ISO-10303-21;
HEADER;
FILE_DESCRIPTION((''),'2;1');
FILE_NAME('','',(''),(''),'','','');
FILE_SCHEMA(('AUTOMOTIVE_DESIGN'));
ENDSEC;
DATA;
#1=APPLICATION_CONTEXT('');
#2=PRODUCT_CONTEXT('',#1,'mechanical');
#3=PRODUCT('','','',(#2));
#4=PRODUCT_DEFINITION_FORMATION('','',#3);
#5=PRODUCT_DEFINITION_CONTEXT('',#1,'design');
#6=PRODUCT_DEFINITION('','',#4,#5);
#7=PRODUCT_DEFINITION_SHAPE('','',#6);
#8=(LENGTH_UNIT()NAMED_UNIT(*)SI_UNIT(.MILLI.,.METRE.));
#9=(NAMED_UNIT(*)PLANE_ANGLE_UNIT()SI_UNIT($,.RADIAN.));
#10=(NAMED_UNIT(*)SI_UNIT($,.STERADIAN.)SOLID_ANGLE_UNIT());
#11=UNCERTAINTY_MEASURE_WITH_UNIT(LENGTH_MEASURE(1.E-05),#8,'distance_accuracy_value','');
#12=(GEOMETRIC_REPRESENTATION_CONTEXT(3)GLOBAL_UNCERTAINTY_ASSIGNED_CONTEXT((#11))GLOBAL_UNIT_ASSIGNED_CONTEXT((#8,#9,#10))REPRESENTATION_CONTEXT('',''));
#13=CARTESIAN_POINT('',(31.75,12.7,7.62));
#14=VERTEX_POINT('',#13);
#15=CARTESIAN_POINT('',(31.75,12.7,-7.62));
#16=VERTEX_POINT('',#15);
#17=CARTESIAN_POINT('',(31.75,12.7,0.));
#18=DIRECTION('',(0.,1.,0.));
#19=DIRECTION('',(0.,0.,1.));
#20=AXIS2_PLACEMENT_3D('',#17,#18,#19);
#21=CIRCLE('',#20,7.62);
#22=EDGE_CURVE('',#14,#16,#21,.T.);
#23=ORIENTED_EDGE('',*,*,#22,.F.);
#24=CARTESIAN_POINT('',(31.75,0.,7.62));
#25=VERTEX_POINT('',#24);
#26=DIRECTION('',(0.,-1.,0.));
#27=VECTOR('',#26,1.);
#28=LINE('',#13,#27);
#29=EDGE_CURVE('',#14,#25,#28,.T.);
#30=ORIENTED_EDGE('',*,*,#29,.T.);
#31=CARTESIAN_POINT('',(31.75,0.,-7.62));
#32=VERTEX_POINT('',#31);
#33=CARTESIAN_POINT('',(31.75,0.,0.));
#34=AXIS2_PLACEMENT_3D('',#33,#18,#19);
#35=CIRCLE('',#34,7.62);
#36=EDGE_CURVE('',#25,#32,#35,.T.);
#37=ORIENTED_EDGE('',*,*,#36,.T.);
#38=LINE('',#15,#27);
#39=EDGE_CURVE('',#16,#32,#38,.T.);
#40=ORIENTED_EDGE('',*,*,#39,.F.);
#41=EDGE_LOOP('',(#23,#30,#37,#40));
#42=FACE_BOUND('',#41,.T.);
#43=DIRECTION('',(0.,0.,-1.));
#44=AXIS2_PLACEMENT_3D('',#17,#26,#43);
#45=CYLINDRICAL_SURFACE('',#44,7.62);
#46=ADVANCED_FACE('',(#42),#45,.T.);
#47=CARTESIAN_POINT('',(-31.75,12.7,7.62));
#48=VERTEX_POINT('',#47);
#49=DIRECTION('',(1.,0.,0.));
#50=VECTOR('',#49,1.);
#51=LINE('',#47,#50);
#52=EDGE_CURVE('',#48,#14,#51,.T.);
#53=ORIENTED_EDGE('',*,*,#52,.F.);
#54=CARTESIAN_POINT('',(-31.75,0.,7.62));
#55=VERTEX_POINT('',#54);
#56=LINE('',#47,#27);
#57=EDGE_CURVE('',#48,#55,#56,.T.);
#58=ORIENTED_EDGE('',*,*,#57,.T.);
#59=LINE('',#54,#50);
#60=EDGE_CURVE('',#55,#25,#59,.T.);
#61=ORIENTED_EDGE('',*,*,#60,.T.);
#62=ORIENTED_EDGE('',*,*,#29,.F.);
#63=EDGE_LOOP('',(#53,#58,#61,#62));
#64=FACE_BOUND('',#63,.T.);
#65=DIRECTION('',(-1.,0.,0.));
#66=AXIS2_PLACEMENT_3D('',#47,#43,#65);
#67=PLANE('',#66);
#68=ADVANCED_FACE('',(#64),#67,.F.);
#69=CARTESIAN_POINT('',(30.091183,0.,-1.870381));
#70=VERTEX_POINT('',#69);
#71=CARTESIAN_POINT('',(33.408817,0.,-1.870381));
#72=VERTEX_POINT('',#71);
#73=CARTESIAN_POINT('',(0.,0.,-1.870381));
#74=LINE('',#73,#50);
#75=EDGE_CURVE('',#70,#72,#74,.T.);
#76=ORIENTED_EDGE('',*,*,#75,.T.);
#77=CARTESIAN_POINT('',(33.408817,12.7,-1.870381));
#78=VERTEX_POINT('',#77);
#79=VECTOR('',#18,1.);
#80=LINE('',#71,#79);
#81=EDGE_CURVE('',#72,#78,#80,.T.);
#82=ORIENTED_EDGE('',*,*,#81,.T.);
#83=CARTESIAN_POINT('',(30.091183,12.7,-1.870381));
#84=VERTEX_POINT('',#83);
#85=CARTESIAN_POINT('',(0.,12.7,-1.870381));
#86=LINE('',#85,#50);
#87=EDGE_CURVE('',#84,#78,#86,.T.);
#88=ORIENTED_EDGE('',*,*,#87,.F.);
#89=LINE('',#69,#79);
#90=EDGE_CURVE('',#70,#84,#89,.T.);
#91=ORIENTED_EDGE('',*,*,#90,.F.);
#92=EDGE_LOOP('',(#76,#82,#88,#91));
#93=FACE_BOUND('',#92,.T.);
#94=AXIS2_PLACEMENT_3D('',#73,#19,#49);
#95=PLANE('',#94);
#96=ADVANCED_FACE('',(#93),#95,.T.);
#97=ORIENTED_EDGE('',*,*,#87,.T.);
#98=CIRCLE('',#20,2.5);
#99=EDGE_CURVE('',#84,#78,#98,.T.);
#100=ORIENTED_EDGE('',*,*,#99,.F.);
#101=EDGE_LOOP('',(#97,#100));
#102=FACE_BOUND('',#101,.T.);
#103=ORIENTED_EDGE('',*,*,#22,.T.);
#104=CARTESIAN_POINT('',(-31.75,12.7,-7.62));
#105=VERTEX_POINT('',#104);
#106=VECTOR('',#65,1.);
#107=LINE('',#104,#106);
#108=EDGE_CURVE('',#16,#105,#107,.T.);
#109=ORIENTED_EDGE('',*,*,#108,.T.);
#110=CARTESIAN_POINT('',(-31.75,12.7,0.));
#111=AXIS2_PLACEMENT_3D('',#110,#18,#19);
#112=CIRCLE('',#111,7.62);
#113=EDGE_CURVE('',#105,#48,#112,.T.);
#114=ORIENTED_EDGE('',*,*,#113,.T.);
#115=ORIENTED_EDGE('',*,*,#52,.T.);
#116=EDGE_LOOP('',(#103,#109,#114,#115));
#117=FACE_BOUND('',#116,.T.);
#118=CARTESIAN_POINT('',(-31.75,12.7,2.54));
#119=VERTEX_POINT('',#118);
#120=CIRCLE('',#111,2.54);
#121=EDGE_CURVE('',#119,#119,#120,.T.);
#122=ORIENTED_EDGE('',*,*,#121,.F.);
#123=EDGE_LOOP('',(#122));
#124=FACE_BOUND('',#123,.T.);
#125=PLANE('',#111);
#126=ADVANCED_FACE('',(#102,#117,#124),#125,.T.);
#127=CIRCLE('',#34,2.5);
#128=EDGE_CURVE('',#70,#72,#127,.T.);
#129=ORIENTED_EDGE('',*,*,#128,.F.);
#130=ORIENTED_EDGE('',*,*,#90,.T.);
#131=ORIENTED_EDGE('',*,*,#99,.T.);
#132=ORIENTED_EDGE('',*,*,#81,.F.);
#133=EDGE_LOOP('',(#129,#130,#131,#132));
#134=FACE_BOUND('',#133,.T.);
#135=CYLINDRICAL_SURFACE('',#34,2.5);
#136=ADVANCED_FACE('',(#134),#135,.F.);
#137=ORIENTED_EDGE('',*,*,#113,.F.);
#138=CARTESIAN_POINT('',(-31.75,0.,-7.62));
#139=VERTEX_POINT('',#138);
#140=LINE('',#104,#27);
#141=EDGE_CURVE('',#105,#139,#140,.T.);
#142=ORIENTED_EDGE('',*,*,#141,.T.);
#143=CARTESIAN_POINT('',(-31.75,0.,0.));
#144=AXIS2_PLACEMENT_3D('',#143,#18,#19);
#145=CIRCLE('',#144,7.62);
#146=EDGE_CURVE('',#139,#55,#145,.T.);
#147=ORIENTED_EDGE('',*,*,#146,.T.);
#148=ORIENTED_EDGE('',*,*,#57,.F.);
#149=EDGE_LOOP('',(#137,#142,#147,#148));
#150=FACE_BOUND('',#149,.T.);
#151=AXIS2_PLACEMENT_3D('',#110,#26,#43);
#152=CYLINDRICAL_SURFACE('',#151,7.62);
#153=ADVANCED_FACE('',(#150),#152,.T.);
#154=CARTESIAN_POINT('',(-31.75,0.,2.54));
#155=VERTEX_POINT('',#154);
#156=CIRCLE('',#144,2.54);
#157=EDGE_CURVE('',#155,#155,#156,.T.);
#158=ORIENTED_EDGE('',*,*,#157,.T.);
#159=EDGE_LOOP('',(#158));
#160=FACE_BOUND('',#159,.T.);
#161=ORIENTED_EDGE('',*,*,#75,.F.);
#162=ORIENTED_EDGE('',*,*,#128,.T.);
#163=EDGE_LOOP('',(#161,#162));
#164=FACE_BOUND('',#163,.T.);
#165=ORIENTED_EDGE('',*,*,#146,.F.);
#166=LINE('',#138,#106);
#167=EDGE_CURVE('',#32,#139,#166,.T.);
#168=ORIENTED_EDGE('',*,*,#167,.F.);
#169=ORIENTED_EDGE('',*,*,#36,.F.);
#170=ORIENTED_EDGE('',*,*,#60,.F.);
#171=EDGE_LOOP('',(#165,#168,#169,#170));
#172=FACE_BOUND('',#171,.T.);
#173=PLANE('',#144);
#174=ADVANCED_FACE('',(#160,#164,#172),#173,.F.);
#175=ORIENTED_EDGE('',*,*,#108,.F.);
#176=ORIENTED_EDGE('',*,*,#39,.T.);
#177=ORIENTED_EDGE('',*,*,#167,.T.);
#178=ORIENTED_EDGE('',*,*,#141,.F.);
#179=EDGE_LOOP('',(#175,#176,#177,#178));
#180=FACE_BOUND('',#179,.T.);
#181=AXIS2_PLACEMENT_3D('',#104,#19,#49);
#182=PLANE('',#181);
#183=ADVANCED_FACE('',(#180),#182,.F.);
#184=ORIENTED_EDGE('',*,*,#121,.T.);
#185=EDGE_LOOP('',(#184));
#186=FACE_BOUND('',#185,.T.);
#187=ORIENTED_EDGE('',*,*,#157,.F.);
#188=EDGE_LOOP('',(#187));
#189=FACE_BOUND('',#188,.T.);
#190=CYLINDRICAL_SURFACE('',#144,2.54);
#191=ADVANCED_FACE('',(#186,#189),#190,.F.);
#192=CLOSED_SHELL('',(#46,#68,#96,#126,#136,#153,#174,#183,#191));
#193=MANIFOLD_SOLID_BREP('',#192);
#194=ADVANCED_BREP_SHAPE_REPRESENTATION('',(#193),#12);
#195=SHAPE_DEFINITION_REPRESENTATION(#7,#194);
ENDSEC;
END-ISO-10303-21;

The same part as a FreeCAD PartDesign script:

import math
import FreeCAD as App
import Part
import Sketcher

V = App.Vector
Q = App.Units.Quantity

doc = App.newDocument("Part")
params = doc.addObject("Spreadsheet::Sheet", "Params")
for row, (alias, value) in enumerate([
    ("sketch1_radius", "0.3 in"),
    ("sketch1_width", "2.5 in"),
    ("pad1_length", "0.5 in"),
    ("sketch2_diameter", "0.2 in"),
], start=1):
    params.set(f"A{row}", alias)
    params.set(f"B{row}", "=" + value)
    params.setAlias(f"B{row}", alias)

body = doc.addObject("PartDesign::Body", "Body")

sketch1 = doc.addObject("Sketcher::SketchObject", "Sketch")
body.addObject(sketch1)
sketch1.AttachmentSupport = (doc.XZ_Plane, [""])
sketch1.MapMode = "FlatFace"
sketch1.addGeometry([
    Part.LineSegment(V(32, -8, 0), V(-32, -8, 0)),
    Part.ArcOfCircle(Part.Circle(V(-32, 0, 0), V(0, 0, 1), 8), math.radians(90), math.radians(270)),
    Part.LineSegment(V(-32, 8, 0), V(32, 8, 0)),
    Part.ArcOfCircle(Part.Circle(V(32, 0, 0), V(0, 0, 1), 8), math.radians(-90), math.radians(90)),
], False)
sketch1.addConstraint([
    Sketcher.Constraint("Tangent", 0, 2, 1, 2),
    Sketcher.Constraint("Tangent", 1, 1, 2, 1),
    Sketcher.Constraint("Tangent", 2, 2, 3, 2),
    Sketcher.Constraint("Tangent", 3, 1, 0, 1),
    Sketcher.Constraint("Horizontal", 0),
    Sketcher.Constraint("Horizontal", 2),
    Sketcher.Constraint("Symmetric", 1, 3, 3, 3, -1, 1),
    Sketcher.Constraint("Radius", 1, Q("0.3 in")),
    Sketcher.Constraint("DistanceX", 0, 2, 0, 1, Q("2.5 in")),
])
sketch1.setExpression("Constraints[7]", "Params.sketch1_radius")
sketch1.setExpression("Constraints[8]", "Params.sketch1_width")
pad1 = doc.addObject("PartDesign::Pad", "Pad")
body.addObject(pad1)
pad1.Profile = sketch1
pad1.setExpression("Length", "Params.pad1_length")
pad1.Reversed = True

sketch2 = doc.addObject("Sketcher::SketchObject", "Sketch001")
body.addObject(sketch2)
sketch2.AttachmentSupport = (doc.XZ_Plane, [""])
sketch2.MapMode = "FlatFace"
sketch2.AttachmentOffset = App.Placement(V(0, 0, -0.5 * 25.4), App.Rotation())
sketch2.addGeometry(Part.Circle(V(-31.8, 0, 0), V(0, 0, 1), 2.5), False)
sketch2.addConstraint([
    Sketcher.Constraint("PointOnObject", 0, 3, -1),
    Sketcher.Constraint("Diameter", 0, Q("0.2 in")),
    Sketcher.Constraint("DistanceX", 0, 3, -1, 1, Q("1.25 in")),
])
sketch2.setExpression("Constraints[1]", "Params.sketch2_diameter")
pocket1 = doc.addObject("PartDesign::Pocket", "Pocket")
body.addObject(pocket1)
pocket1.Profile = sketch2
pocket1.Type = "ThroughAll"
pocket1.Reversed = True

sketch3 = doc.addObject("Sketcher::SketchObject", "Sketch002")
body.addObject(sketch3)
sketch3.AttachmentSupport = (doc.XZ_Plane, [""])
sketch3.MapMode = "FlatFace"
sketch3.AttachmentOffset = App.Placement(V(0, 0, -0.5 * 25.4), App.Rotation())
sketch3.addGeometry([
    Part.LineSegment(V(33.4, -1.9, 0), V(30.1, -1.9, 0)),
    Part.ArcOfCircle(Part.Circle(V(31.8, 0, 0), V(0, 0, 1), 2.5), math.radians(0), math.radians(228)),
    Part.ArcOfCircle(Part.Circle(V(31.7, 0, 0), V(0, 0, 1), 2.5), math.radians(-48), math.radians(0)),
], False)
sketch3.addConstraint([
    Sketcher.Constraint("Coincident", 0, 2, 1, 2),
    Sketcher.Constraint("Tangent", 1, 1, 2, 2),
    Sketcher.Constraint("Coincident", 2, 1, 0, 1),
    Sketcher.Constraint("Horizontal", 0),
    Sketcher.Constraint("Equal", 1, 2),
    Sketcher.Constraint("PointOnObject", 1, 3, -1),
    Sketcher.Constraint("PointOnObject", 1, 1, -1),
    Sketcher.Constraint("DistanceX", -1, 1, 1, 3, Q("1.25 in")),
    Sketcher.Constraint("Radius", 1, Q("2.5 mm")),
    Sketcher.Constraint("DistanceX", 0, 2, 0, 1, Q("3.317635 mm")),
])
pocket2 = doc.addObject("PartDesign::Pocket", "Pocket001")
body.addObject(pocket2)
pocket2.Profile = sketch3
pocket2.Type = "ThroughAll"
pocket2.Reversed = True

doc.recompute()
